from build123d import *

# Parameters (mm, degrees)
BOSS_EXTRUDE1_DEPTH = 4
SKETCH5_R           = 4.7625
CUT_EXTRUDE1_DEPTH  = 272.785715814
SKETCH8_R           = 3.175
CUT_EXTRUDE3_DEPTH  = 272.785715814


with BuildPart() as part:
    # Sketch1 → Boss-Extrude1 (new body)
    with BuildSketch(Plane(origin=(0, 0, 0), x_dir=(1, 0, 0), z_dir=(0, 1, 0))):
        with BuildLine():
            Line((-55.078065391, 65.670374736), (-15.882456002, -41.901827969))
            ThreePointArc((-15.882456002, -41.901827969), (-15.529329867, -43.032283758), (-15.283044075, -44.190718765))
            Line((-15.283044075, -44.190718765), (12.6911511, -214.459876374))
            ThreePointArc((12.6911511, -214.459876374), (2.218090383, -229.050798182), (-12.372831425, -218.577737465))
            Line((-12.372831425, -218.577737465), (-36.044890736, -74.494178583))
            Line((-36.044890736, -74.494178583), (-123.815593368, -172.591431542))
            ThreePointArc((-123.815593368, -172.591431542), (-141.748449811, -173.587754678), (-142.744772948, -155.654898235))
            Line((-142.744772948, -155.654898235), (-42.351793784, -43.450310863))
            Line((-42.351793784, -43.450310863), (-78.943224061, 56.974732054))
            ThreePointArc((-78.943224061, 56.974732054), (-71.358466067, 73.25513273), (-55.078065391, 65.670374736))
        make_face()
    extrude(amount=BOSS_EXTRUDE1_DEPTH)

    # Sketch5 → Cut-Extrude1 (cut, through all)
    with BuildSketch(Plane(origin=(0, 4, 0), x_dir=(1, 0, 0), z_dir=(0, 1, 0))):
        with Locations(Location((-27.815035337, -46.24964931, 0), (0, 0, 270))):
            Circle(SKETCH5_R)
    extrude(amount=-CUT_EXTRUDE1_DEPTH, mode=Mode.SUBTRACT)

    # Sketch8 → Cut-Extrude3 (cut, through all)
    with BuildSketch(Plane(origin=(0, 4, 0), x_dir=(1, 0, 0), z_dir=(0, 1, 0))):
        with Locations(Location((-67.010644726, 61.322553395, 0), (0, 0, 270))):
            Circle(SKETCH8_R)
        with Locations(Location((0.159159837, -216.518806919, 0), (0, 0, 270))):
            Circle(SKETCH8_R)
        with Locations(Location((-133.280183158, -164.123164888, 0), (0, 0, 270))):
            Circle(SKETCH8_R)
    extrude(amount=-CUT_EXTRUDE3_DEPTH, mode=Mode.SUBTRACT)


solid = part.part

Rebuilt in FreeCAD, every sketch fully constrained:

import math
import FreeCAD as App
import Part
import Sketcher

V = App.Vector
Q = App.Units.Quantity

doc = App.newDocument("Part")
body = doc.addObject("PartDesign::Body", "Body")

sketch1 = body.newObject("Sketcher::SketchObject", "Sketch")
sketch1.AttachmentSupport = (doc.getObject("XZ_Plane"), [""])
sketch1.MapMode = "FlatFace"
sketch1.addGeometry([
    Part.LineSegment(V(-15.9, 41.9, 0), V(-55.1, -65.7, 0)),
    Part.ArcOfCircle(Part.Circle(V(-67, -61.3, 0), V(0, 0, 1), 12.7), math.radians(160), math.radians(340)),
    Part.LineSegment(V(-78.9, -57, 0), V(-42.4, 43.5, 0)),
    Part.LineSegment(V(-42.4, 43.5, 0), V(-142.7, 155.7, 0)),
    Part.ArcOfCircle(Part.Circle(V(-133.3, 164.1, 0), V(0, 0, 1), 12.7), math.radians(42), math.radians(222)),
    Part.LineSegment(V(-123.8, 172.6, 0), V(-36, 74.5, 0)),
    Part.LineSegment(V(-36, 74.5, 0), V(-12.4, 218.6, 0)),
    Part.ArcOfCircle(Part.Circle(V(0.2, 216.5, 0), V(0, 0, 1), 12.7), math.radians(-9), math.radians(171)),
    Part.LineSegment(V(12.7, 214.5, 0), V(-15.3, 44.2, 0)),
    Part.ArcOfCircle(Part.Circle(V(-27.8, 46.2, 0), V(0, 0, 1), 12.7), math.radians(-20.02), math.radians(-9.33)),
], False)
sketch1.addConstraint([
    Sketcher.Constraint("Tangent", 0, 2, 1, 2),
    Sketcher.Constraint("Tangent", 1, 1, 2, 1),
    Sketcher.Constraint("Coincident", 2, 2, 3, 1),
    Sketcher.Constraint("Tangent", 3, 2, 4, 2),
    Sketcher.Constraint("Tangent", 4, 1, 5, 1),
    Sketcher.Constraint("Coincident", 5, 2, 6, 1),
    Sketcher.Constraint("Tangent", 6, 2, 7, 2),
    Sketcher.Constraint("Tangent", 7, 1, 8, 1),
    Sketcher.Constraint("Tangent", 8, 2, 9, 2),
    Sketcher.Constraint("Tangent", 9, 1, 0, 1),
    Sketcher.Constraint("Equal", 1, 4),
    Sketcher.Constraint("Equal", 4, 7),
    Sketcher.Constraint("Equal", 7, 9),
    Sketcher.Constraint("Parallel", 0, 2),
    Sketcher.Constraint("Parallel", 3, 5),
    Sketcher.Constraint("Parallel", 6, 8),
    Sketcher.Constraint("Radius", 1, Q("0.5 in")),
    Sketcher.Constraint("Angle", 0, Q("-110.02 deg")),
    Sketcher.Constraint("Angle", 3, Q("131.82 deg")),
    Sketcher.Constraint("Angle", 6, Q("80.67 deg")),
    Sketcher.Constraint("Distance", 0, Q("4.5075 in")),
    Sketcher.Constraint("DistanceX", 2, 2, 9, 1, Q("1.0420999 in")),
    Sketcher.Constraint("Distance", 6, 146.015199),
    Sketcher.Constraint("DistanceY", -1, 1, 3, 2, 155.654898),
    Sketcher.Constraint("DistanceX", 4, 1, 2, 2, 81.4638),
    Sketcher.Constraint("DistanceX", -1, 1, 7, 3, 0.15916),
])
pad1 = body.newObject("PartDesign::Pad", "Pad")
pad1.Profile = sketch1
pad1.Length = 4
pad1.Reversed = True

sketch2 = body.newObject("Sketcher::SketchObject", "Sketch001")
sketch2.AttachmentSupport = (doc.getObject("XZ_Plane"), [""])
sketch2.MapMode = "FlatFace"
sketch2.AttachmentOffset = App.Placement(V(0, 0, -4), App.Rotation())
sketch2.addGeometry(Part.Circle(V(-27.8, 46.2, 0), V(0, 0, 1), 4.8), False)
sketch2.addConstraint([
    Sketcher.Constraint("Diameter", 0, Q("0.375 in")),
    Sketcher.Constraint("DistanceY", -1, 1, 0, 3, 46.249649),
    Sketcher.Constraint("DistanceX", 0, 3, -1, 1, 27.815035),
])
pocket1 = body.newObject("PartDesign::Pocket", "Pocket")
pocket1.Profile = sketch2
pocket1.Type = "ThroughAll"
pocket1.Reversed = True

sketch3 = body.newObject("Sketcher::SketchObject", "Sketch002")
sketch3.AttachmentSupport = (doc.getObject("XZ_Plane"), [""])
sketch3.MapMode = "FlatFace"
sketch3.AttachmentOffset = App.Placement(V(0, 0, -4), App.Rotation())
sketch3.addGeometry([
    Part.Circle(V(-67, -61.3, 0), V(0, 0, 1), 3.2),
    Part.Circle(V(0.2, 216.5, 0), V(0, 0, 1), 3.2),
    Part.Circle(V(-133.3, 164.1, 0), V(0, 0, 1), 3.2),
], False)
sketch3.addConstraint([
    Sketcher.Constraint("Equal", 0, 1),
    Sketcher.Constraint("Equal", 1, 2),
    Sketcher.Constraint("Diameter", 0, Q("0.25 in")),
    Sketcher.Constraint("DistanceX", -1, 1, 1, 3, 0.15916),
    Sketcher.Constraint("DistanceY", 0, 3, 1, 3, 277.84136),
    Sketcher.Constraint("DistanceX", 2, 3, 0, 3, 66.269538),
    Sketcher.Constraint("DistanceY", 0, 3, 2, 3, 225.445718),
    Sketcher.Constraint("DistanceX", 0, 3, -1, 1, 67.010645),
    Sketcher.Constraint("DistanceY", 0, 3, -1, 1, 61.322553),
])
pocket2 = body.newObject("PartDesign::Pocket", "Pocket001")
pocket2.Profile = sketch3
pocket2.Type = "ThroughAll"
pocket2.Reversed = True

doc.recompute()
